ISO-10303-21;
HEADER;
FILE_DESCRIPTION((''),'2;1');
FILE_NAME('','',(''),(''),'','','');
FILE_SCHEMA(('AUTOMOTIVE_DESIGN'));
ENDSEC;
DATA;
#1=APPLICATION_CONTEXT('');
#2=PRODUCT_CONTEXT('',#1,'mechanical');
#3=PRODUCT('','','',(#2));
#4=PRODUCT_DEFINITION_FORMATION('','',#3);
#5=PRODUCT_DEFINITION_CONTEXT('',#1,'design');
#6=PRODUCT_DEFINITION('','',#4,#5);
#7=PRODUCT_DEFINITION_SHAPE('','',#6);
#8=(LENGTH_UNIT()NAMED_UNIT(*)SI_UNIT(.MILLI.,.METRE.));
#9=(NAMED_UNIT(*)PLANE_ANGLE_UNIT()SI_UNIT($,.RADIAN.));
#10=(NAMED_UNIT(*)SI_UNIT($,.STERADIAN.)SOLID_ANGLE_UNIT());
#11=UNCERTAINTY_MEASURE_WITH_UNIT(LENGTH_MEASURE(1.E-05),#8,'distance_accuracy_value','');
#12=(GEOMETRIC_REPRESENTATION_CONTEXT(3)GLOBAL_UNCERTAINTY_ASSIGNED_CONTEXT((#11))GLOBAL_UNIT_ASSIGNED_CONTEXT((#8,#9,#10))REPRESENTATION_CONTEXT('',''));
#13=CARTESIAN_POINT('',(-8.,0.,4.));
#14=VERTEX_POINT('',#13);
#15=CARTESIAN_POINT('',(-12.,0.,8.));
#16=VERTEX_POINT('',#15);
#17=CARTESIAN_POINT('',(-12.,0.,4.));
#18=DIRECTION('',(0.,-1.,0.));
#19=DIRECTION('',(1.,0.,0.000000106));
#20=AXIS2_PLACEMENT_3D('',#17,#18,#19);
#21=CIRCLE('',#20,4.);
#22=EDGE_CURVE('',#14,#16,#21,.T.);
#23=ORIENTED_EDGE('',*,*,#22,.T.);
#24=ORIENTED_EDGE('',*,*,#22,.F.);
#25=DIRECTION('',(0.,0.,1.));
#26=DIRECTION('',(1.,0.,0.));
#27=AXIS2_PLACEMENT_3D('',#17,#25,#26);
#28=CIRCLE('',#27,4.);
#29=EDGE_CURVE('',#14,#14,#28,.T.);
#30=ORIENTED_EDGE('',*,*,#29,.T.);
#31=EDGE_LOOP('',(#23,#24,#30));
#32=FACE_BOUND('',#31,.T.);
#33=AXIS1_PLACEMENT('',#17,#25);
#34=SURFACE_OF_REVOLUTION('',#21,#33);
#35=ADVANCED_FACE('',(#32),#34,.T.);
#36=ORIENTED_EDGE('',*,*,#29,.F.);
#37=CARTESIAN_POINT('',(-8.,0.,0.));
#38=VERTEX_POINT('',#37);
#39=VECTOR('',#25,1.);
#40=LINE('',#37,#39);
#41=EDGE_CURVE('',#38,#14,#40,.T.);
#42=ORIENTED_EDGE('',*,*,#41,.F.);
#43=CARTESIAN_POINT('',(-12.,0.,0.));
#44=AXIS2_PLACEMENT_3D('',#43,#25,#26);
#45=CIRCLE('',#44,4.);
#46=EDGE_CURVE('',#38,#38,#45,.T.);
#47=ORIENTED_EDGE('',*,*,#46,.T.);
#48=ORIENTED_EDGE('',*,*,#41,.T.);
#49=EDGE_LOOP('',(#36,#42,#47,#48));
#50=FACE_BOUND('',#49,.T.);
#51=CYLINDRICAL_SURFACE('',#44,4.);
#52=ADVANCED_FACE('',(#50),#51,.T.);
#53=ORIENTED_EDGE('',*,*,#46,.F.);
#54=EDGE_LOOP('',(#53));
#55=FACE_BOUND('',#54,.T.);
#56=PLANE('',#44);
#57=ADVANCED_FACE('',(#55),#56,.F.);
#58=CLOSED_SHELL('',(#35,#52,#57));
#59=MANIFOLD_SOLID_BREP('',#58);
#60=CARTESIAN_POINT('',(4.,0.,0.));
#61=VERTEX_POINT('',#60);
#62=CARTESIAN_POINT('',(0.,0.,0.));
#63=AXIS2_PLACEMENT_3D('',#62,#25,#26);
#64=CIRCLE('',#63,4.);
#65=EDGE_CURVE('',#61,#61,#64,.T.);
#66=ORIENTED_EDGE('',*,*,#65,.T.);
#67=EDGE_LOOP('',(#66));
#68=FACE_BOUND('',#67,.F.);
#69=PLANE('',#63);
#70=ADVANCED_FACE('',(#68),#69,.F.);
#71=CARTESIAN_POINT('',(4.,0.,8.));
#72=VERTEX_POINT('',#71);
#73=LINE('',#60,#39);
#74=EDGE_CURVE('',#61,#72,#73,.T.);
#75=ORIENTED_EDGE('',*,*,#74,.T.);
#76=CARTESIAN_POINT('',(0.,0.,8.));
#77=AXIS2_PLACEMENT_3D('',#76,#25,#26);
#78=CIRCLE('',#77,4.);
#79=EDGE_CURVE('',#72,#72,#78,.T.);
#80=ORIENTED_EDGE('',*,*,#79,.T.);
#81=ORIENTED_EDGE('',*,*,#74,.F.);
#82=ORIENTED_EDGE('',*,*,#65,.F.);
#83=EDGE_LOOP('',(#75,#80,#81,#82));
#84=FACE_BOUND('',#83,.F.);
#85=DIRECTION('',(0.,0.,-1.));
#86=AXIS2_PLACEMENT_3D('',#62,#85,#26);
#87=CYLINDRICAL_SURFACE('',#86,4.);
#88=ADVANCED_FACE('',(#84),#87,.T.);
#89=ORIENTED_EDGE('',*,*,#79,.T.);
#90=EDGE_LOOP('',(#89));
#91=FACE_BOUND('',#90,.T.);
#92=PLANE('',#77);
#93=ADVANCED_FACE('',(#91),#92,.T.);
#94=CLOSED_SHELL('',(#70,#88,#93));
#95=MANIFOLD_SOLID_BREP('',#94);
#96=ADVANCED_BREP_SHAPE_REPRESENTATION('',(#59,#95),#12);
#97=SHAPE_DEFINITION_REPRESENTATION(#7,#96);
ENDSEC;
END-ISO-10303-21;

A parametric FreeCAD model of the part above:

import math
import FreeCAD as App
import Part
import Sketcher
from FreeCAD import Vector

doc = App.newDocument("Part")
params = doc.addObject("Spreadsheet::Sheet", "Params")
for row, (alias, value) in enumerate([
    ("sketch1_diameter", "8 mm"),
    ("pad1_length", "8 mm"),
    ("sketch2_radius", "4 mm"),
    ("revolution_angle", "360 deg"),
], start=1):
    params.set(f"A{row}", alias)
    params.set(f"B{row}", "=" + value)
    params.setAlias(f"B{row}", alias)

body = doc.addObject("PartDesign::Body", "Body")

# Sketch on XY plane
sketch1 = doc.addObject("Sketcher::SketchObject", "Sketch")
body.addObject(sketch1)
sketch1.AttachmentSupport = (doc.XY_Plane, [""])
sketch1.MapMode = "FlatFace"
sketch1.addGeometry(Part.Circle(Vector(0, 0, 0), Vector(0, 0, 1), 4), False)
sketch1.addConstraint([
    Sketcher.Constraint("Coincident", 0, 3, -1, 1),
    Sketcher.Constraint("Diameter", 0, 8.0),
])
sketch1.setExpression("Constraints[1]", "Params.sketch1_diameter")
pad1 = doc.addObject("PartDesign::Pad", "Pad")
body.addObject(pad1)
pad1.Profile = sketch1
pad1.setExpression("Length", "Params.pad1_length")
body2 = doc.addObject("PartDesign::Body", "Body001")

# Sketch on XZ plane
sketch2 = doc.addObject("Sketcher::SketchObject", "Sketch001")
body2.addObject(sketch2)
sketch2.AttachmentSupport = (doc.getObject("XZ_Plane001"), [""])
sketch2.MapMode = "FlatFace"
sketch2.addGeometry([
    Part.LineSegment(Vector(-12, 8, 0), Vector(-12, 0, 0)),
    Part.LineSegment(Vector(-12, 0, 0), Vector(-8, 0, 0)),
    Part.LineSegment(Vector(-8, 0, 0), Vector(-8, 4, 0)),
    Part.ArcOfCircle(Part.Circle(Vector(-12, 4, 0), Vector(0, 0, 1), 4), math.radians(0.000006), math.radians(89.999994)),
], False)
sketch2.addGeometry(Part.LineSegment(Vector(-12, 0, 0), Vector(-12, 8, 0)), True)  # axis
sketch2.addConstraint([
    Sketcher.Constraint("Coincident", 0, 2, 1, 1),
    Sketcher.Constraint("Coincident", 1, 2, 2, 1),
    Sketcher.Constraint("Tangent", 2, 2, 3, 1),
    Sketcher.Constraint("Coincident", 3, 2, 0, 1),
    Sketcher.Constraint("Vertical", 0),
    Sketcher.Constraint("Horizontal", 1),
    Sketcher.Constraint("Vertical", 2),
    Sketcher.Constraint("Vertical", 4),
    Sketcher.Constraint("Coincident", 4, 1, 0, 2),
    Sketcher.Constraint("PointOnObject", 0, 2, -1),
    Sketcher.Constraint("Vertical", 3, 3, 0, 2),
    Sketcher.Constraint("Equal", 1, 2),
    Sketcher.Constraint("Equal", 0, 4),
    Sketcher.Constraint("Radius", 3, 4.0),
    Sketcher.Constraint("DistanceX", 3, 3, -1, 1, 12.0),
])
sketch2.setExpression("Constraints[13]", "Params.sketch2_radius")
revolution = doc.addObject("PartDesign::Revolution", "Revolution")
body2.addObject(revolution)
revolution.Profile = sketch2
revolution.ReferenceAxis = (sketch2, ["Axis0"])
revolution.setExpression("Angle", "Params.revolution_angle")

doc.recompute()
